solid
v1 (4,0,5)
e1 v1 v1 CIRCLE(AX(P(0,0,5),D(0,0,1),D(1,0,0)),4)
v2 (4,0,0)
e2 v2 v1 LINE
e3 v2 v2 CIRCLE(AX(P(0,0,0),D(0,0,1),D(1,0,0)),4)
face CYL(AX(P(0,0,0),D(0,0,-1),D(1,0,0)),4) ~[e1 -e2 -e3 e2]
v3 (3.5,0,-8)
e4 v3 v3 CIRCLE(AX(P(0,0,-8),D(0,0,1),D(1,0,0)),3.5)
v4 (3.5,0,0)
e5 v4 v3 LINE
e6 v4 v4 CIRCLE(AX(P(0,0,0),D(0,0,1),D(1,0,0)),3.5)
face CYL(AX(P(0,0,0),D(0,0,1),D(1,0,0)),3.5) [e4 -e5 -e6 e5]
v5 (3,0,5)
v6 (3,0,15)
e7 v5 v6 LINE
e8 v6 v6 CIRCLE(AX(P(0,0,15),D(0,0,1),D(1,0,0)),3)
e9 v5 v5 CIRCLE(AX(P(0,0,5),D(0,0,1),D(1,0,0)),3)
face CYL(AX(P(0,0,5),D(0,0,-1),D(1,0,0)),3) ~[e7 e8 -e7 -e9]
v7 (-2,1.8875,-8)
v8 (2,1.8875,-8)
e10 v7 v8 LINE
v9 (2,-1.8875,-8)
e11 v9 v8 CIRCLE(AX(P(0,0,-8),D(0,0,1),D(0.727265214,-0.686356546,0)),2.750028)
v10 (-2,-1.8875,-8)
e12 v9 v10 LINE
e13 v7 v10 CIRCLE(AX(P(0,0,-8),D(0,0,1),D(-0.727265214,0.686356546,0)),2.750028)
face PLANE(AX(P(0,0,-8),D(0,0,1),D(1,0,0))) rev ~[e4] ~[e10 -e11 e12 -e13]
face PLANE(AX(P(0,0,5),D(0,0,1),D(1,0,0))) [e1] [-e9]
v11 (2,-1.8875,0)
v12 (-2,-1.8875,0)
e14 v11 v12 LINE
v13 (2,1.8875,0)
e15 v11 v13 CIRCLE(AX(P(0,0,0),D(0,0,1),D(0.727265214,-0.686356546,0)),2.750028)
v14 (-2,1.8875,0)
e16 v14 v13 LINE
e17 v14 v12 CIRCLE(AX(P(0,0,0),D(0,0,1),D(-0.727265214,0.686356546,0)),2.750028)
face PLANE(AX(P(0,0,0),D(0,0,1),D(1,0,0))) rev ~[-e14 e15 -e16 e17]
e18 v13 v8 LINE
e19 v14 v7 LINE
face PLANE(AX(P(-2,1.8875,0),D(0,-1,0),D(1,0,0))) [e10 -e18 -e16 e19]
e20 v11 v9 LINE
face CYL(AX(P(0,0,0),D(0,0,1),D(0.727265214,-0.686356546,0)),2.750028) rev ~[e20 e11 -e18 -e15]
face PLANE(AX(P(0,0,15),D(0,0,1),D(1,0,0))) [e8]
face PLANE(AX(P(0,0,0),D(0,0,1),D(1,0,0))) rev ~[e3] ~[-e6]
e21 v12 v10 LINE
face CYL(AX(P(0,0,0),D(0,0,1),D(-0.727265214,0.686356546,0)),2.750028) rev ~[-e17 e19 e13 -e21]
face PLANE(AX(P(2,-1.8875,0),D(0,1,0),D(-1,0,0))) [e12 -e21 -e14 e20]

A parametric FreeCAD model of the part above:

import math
import FreeCAD as App
import Part
import Sketcher

V = App.Vector
Q = App.Units.Quantity

doc = App.newDocument("Part")
body = doc.addObject("PartDesign::Body", "Body")

# Sketch on XY plane
sketch1 = body.newObject("Sketcher::SketchObject", "Sketch")
sketch1.AttachmentSupport = (doc.getObject("XY_Plane"), [""])
sketch1.MapMode = "FlatFace"
sketch1.addGeometry([
    Part.Circle(V(0, 0, 0), V(0, 0, 1), 3.5),  # 0
    Part.ArcOfCircle(Part.Circle(V(0, 0, 0), V(0, 0, 1), 2.8), math.radians(137), math.radians(223)),  # 1
    Part.LineSegment(V(-2, 1.9, 0), V(2, 1.9, 0)),  # 2
    Part.ArcOfCircle(Part.Circle(V(0, 0, 0), V(0, 0, 1), 2.8), math.radians(-43), math.radians(43)),  # 3
    Part.LineSegment(V(2, -1.9, 0), V(-2, -1.9, 0)),  # 4
], False)
sketch1.addConstraint([
    Sketcher.Constraint("Coincident", 1, 1, 2, 1),
    Sketcher.Constraint("Coincident", 2, 2, 3, 2),
    Sketcher.Constraint("Coincident", 3, 1, 4, 1),
    Sketcher.Constraint("Coincident", 4, 2, 1, 2),
    Sketcher.Constraint("Horizontal", 2),
    Sketcher.Constraint("Horizontal", 4),
    Sketcher.Constraint("Coincident", 0, 3, -1, 1),
    Sketcher.Constraint("Coincident", 1, 3, -1, 1),
    Sketcher.Constraint("Coincident", 3, 3, -1, 1),
    Sketcher.Constraint("Equal", 1, 3),
    Sketcher.Constraint("Vertical", 2, 2, 3, 1),
    Sketcher.Constraint("Diameter", 0, Q("7 mm")),
    Sketcher.Constraint("DistanceX", 2, 1, 2, 2, Q("4 mm")),
    Sketcher.Constraint("Radius", 1, Q("2.75 mm")),
])
pad1 = body.newObject("PartDesign::Pad", "Pad")
pad1.Profile = sketch1
pad1.Length = 8
pad1.Reversed = True

# Sketch on XY plane
sketch2 = body.newObject("Sketcher::SketchObject", "Sketch001")
sketch2.AttachmentSupport = (doc.getObject("XY_Plane"), [""])
sketch2.MapMode = "FlatFace"
sketch2.addGeometry(Part.Circle(V(0, 0, 0), V(0, 0, 1), 4), False)
sketch2.addConstraint([
    Sketcher.Constraint("Coincident", 0, 3, -1, 1),
    Sketcher.Constraint("Diameter", 0, Q("8 mm")),
])
pad2 = body.newObject("PartDesign::Pad", "Pad001")
pad2.Profile = sketch2
pad2.Length = 5

# Sketch on XY plane
sketch3 = body.newObject("Sketcher::SketchObject", "Sketch002")
sketch3.AttachmentSupport = (doc.getObject("XY_Plane"), [""])
sketch3.MapMode = "FlatFace"
sketch3.AttachmentOffset = App.Placement(V(0, 0, 5), App.Rotation())
sketch3.addGeometry(Part.Circle(V(0, 0, 0), V(0, 0, 1), 3), False)
sketch3.addConstraint([
    Sketcher.Constraint("Coincident", 0, 3, -1, 1),
    Sketcher.Constraint("Diameter", 0, Q("6 mm")),
])
pad3 = body.newObject("PartDesign::Pad", "Pad002")
pad3.Profile = sketch3
pad3.Length = 10

doc.recompute()
